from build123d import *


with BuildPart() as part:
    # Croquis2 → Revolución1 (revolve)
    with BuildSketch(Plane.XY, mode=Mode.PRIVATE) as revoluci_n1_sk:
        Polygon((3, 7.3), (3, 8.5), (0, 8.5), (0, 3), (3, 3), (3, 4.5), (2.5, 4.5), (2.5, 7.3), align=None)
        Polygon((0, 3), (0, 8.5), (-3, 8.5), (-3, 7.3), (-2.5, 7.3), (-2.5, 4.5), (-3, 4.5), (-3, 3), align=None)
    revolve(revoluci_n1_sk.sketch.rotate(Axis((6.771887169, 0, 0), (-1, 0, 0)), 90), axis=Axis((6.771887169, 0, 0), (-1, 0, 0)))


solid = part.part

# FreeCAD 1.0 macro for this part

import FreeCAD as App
import Part
import Sketcher

V = App.Vector
Q = App.Units.Quantity

doc = App.newDocument("Part")
body = doc.addObject("PartDesign::Body", "Body")

sketch1 = body.newObject("Sketcher::SketchObject", "Sketch")
sketch1.AttachmentSupport = (doc.getObject("XY_Plane"), [""])
sketch1.MapMode = "FlatFace"
sketch1.addGeometry(Part.LineSegment(V(3, 7.3, 0), V(3, 8.5, 0)), False)
sketch1.addGeometry(Part.LineSegment(V(3, 8.5, 0), V(-3, 8.5, 0)), False)
sketch1.addGeometry(Part.LineSegment(V(-3, 8.5, 0), V(-3, 7.3, 0)), False)
sketch1.addGeometry(Part.LineSegment(V(-3, 7.3, 0), V(-2.5, 7.3, 0)), False)
sketch1.addGeometry(Part.LineSegment(V(-2.5, 7.3, 0), V(-2.5, 4.5, 0)), False)
sketch1.addGeometry(Part.LineSegment(V(-2.5, 4.5, 0), V(-3, 4.5, 0)), False)
sketch1.addGeometry(Part.LineSegment(V(-3, 4.5, 0), V(-3, 3, 0)), False)
sketch1.addGeometry(Part.LineSegment(V(-3, 3, 0), V(3, 3, 0)), False)
sketch1.addGeometry(Part.LineSegment(V(3, 3, 0), V(3, 4.5, 0)), False)
sketch1.addGeometry(Part.LineSegment(V(3, 4.5, 0), V(2.5, 4.5, 0)), False)
sketch1.addGeometry(Part.LineSegment(V(2.5, 4.5, 0), V(2.5, 7.3, 0)), False)
sketch1.addGeometry(Part.LineSegment(V(2.5, 7.3, 0), V(3, 7.3, 0)), False)
sketch1.addConstraint(Sketcher.Constraint("Coincident", 0, 2, 1, 1))
sketch1.addConstraint(Sketcher.Constraint("Coincident", 1, 2, 2, 1))
sketch1.addConstraint(Sketcher.Constraint("Coincident", 2, 2, 3, 1))
sketch1.addConstraint(Sketcher.Constraint("Coincident", 3, 2, 4, 1))
sketch1.addConstraint(Sketcher.Constraint("Coincident", 4, 2, 5, 1))
sketch1.addConstraint(Sketcher.Constraint("Coincident", 5, 2, 6, 1))
sketch1.addConstraint(Sketcher.Constraint("Coincident", 6, 2, 7, 1))
sketch1.addConstraint(Sketcher.Constraint("Coincident", 7, 2, 8, 1))
sketch1.addConstraint(Sketcher.Constraint("Coincident", 8, 2, 9, 1))
sketch1.addConstraint(Sketcher.Constraint("Coincident", 9, 2, 10, 1))
sketch1.addConstraint(Sketcher.Constraint("Coincident", 10, 2, 11, 1))
sketch1.addConstraint(Sketcher.Constraint("Coincident", 11, 2, 0, 1))
sketch1.addConstraint(Sketcher.Constraint("Vertical", 0))
sketch1.addConstraint(Sketcher.Constraint("Horizontal", 1))
sketch1.addConstraint(Sketcher.Constraint("Vertical", 2))
sketch1.addConstraint(Sketcher.Constraint("Horizontal", 3))
sketch1.addConstraint(Sketcher.Constraint("Vertical", 4))
sketch1.addConstraint(Sketcher.Constraint("Horizontal", 5))
sketch1.addConstraint(Sketcher.Constraint("Vertical", 6))
sketch1.addConstraint(Sketcher.Constraint("Horizontal", 7))
sketch1.addConstraint(Sketcher.Constraint("Vertical", 8))
sketch1.addConstraint(Sketcher.Constraint("Horizontal", 9))
sketch1.addConstraint(Sketcher.Constraint("Vertical", 10))
sketch1.addConstraint(Sketcher.Constraint("Horizontal", 11))
sketch1.addConstraint(Sketcher.Constraint("Symmetric", 5, 2, 8, 2, -2))
sketch1.addConstraint(Sketcher.Constraint("Symmetric", 3, 2, 10, 2, -2))
sketch1.addConstraint(Sketcher.Constraint("Vertical", 2, 2, 5, 2))
sketch1.addConstraint(Sketcher.Constraint("Vertical", 0, 2, 7, 2))
sketch1.addConstraint(Sketcher.Constraint("DistanceX", 1, 2, 1, 1, Q("6 mm")))
sketch1.addConstraint(Sketcher.Constraint("DistanceX", 3, 1, 3, 2, Q("0.5 mm")))
sketch1.addConstraint(Sketcher.Constraint("DistanceY", 0, 1, 0, 2, Q("1.2 mm")))
sketch1.addConstraint(Sketcher.Constraint("DistanceY", 4, 2, 4, 1, Q("2.8 mm")))
sketch1.addConstraint(Sketcher.Constraint("DistanceY", 6, 2, 6, 1, Q("1.5 mm")))
sketch1.addConstraint(Sketcher.Constraint("DistanceY", -1, 1, 6, 2, Q("3 mm")))
revolution = body.newObject("PartDesign::Revolution", "Revolution")
revolution.Profile = sketch1
revolution.ReferenceAxis = (sketch1, ["H_Axis"])
revolution.Angle = 360

doc.recompute()
